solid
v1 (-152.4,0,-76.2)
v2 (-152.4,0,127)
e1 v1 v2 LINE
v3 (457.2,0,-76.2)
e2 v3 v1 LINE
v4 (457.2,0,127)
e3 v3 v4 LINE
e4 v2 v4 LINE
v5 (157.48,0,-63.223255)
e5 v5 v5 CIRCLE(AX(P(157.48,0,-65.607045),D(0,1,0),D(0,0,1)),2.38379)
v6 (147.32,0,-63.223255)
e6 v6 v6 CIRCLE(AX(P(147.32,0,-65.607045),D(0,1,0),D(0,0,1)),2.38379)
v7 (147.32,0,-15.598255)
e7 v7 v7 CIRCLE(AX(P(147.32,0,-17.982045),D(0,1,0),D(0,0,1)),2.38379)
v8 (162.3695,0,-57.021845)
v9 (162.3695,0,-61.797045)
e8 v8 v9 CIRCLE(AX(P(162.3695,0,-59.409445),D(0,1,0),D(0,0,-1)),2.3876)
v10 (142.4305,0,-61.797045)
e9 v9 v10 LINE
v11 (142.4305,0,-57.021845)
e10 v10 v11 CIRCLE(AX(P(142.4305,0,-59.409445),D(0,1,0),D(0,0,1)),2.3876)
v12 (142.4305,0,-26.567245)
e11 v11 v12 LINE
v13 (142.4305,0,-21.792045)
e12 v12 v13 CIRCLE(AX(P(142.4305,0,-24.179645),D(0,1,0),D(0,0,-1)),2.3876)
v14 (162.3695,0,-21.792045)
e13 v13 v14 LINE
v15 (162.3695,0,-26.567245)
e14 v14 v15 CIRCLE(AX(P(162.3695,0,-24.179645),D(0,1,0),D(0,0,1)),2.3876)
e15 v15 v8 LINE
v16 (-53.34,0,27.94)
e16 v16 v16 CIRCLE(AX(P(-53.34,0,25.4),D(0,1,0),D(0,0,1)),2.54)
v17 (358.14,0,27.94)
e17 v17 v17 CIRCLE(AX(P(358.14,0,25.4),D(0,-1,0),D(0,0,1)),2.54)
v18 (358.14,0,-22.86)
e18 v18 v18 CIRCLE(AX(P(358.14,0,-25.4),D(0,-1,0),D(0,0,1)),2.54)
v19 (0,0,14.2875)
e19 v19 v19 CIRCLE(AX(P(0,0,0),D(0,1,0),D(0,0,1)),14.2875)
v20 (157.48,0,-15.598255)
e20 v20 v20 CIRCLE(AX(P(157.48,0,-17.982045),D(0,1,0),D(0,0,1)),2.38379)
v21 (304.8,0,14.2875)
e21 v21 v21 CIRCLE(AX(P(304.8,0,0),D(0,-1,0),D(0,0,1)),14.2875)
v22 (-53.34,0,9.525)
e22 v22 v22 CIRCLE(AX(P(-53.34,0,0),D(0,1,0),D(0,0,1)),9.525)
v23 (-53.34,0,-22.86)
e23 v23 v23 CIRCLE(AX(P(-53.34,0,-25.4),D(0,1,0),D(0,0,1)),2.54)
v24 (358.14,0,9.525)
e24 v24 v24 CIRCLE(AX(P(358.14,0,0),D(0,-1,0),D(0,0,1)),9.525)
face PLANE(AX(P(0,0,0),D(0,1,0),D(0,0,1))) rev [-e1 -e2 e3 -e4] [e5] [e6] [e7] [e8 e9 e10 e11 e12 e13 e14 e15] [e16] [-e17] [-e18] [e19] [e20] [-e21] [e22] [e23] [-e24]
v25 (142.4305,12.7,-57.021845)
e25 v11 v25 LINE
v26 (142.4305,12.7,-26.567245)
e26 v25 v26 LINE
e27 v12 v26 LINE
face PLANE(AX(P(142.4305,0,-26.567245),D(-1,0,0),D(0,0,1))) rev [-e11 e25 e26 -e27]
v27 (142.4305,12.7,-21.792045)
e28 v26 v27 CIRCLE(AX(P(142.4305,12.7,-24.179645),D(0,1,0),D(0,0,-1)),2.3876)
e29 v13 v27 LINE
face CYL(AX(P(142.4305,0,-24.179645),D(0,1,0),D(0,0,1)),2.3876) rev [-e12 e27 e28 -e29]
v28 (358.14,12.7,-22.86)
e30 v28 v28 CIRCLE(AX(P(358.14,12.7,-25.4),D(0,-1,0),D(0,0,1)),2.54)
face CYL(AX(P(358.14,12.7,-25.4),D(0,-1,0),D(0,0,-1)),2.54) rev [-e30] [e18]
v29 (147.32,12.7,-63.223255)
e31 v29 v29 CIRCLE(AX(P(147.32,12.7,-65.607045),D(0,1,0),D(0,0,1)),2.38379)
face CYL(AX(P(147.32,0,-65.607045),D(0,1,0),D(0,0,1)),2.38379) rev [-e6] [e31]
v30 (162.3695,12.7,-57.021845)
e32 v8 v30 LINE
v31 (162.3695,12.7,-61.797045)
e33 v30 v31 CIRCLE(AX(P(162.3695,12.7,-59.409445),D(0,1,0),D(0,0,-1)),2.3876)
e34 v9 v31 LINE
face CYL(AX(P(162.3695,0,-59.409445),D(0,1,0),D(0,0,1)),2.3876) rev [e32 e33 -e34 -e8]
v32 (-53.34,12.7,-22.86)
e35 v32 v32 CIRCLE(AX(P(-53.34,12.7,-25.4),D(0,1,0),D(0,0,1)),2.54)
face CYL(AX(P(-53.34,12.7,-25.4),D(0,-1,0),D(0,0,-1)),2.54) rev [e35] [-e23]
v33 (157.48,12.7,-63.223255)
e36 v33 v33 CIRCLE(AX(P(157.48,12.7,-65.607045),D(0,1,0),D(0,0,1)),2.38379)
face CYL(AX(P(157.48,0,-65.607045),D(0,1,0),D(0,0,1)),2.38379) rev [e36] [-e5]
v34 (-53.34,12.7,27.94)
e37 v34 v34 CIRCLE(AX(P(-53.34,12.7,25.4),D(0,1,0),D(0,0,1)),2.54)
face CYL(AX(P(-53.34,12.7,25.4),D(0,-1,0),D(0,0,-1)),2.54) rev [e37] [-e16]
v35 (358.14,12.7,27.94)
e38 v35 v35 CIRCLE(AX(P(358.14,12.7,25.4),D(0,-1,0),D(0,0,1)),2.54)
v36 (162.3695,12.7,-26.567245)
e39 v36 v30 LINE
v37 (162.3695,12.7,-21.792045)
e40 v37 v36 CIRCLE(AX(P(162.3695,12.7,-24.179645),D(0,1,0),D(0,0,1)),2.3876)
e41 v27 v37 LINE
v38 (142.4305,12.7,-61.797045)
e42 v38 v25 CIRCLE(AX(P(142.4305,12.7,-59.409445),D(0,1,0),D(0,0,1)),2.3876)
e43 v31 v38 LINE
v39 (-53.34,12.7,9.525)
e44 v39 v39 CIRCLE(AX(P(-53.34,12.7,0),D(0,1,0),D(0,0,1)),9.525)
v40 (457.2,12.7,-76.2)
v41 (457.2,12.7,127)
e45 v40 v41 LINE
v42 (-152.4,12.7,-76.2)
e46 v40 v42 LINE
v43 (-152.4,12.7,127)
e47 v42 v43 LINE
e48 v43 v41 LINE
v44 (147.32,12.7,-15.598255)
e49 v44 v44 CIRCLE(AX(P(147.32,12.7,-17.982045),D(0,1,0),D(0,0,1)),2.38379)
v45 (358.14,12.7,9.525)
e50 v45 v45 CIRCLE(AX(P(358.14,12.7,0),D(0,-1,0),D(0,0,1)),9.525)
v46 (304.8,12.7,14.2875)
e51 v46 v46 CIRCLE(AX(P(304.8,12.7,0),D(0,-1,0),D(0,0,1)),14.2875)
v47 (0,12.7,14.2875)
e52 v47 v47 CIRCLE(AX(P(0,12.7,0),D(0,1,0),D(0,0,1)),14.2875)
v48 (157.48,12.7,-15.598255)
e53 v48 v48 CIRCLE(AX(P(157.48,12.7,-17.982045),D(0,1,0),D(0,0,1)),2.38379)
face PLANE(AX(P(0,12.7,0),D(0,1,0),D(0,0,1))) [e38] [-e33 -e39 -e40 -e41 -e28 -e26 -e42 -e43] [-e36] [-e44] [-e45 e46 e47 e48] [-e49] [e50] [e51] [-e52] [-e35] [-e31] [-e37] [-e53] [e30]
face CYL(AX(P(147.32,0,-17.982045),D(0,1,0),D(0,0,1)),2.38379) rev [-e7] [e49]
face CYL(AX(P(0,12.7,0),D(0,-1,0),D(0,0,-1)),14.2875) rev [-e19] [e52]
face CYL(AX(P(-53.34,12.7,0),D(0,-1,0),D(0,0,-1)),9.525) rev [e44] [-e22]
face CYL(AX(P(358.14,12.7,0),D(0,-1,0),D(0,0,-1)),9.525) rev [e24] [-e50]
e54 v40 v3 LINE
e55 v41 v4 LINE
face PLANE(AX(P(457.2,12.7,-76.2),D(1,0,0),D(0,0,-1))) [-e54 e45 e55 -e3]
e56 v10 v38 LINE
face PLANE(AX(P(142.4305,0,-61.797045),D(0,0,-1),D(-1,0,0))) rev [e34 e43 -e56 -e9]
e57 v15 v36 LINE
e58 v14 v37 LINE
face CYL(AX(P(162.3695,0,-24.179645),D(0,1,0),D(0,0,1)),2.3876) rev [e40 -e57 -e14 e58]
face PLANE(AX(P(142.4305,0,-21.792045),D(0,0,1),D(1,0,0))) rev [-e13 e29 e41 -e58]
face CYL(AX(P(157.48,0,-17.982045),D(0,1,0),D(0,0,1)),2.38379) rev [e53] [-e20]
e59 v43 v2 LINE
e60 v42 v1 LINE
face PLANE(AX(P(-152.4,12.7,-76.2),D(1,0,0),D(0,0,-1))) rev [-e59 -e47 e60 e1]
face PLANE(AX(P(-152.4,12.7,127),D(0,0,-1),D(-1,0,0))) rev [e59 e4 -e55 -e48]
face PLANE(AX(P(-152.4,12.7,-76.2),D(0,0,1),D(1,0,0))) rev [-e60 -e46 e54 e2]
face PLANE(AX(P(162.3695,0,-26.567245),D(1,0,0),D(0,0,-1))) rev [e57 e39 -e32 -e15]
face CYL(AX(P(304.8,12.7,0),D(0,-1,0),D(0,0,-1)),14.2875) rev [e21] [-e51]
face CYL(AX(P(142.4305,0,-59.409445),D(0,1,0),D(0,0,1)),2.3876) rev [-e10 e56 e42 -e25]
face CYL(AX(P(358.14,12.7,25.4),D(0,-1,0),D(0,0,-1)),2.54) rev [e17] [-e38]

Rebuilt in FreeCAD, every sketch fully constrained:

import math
import FreeCAD as App
import Part
import Sketcher
Q = App.Units.Quantity


def add_polygon(sketch, points):
    """Adds a closed chain of lines whose ends are joined by coincident constraints."""
    first, n = sketch.GeometryCount, len(points)
    for a, b in zip(points, points[1:] + points[:1]):
        sketch.addGeometry(Part.LineSegment(App.Vector(*a, 0), App.Vector(*b, 0)), False)
    for i in range(n):
        sketch.addConstraint(Sketcher.Constraint("Coincident", first + i, 2, first + (i + 1) % n, 1))

doc = App.newDocument("Part")
body = doc.addObject("PartDesign::Body", "Body")

sketch1 = body.newObject("Sketcher::SketchObject", "Sketch")
sketch1.AttachmentSupport = (doc.getObject("XZ_Plane"), [""])
sketch1.MapMode = "FlatFace"
add_polygon(sketch1, [(-152.4, -76.2), (-152.4, 127), (152.4, 127), (152.4, -76.2)])
sketch1.addGeometry(Part.Circle(App.Vector(-53.3, 25.4, 0), App.Vector(0, 0, 1), 2.5), False)
sketch1.addGeometry(Part.Circle(App.Vector(-53.3, 0, 0), App.Vector(0, 0, 1), 9.5), False)
sketch1.addGeometry(Part.Circle(App.Vector(-53.3, -25.4, 0), App.Vector(0, 0, 1), 2.5), False)
sketch1.addGeometry(Part.Circle(App.Vector(0, 0, 0), App.Vector(0, 0, 1), 14.3), False)
sketch1.addConstraint([
    Sketcher.Constraint("Vertical", 0),
    Sketcher.Constraint("Horizontal", 1),
    Sketcher.Constraint("Vertical", 2),
    Sketcher.Constraint("Horizontal", 3),
    Sketcher.Constraint("Coincident", 7, 3, -1, 1),
    Sketcher.Constraint("Equal", 4, 6),
    Sketcher.Constraint("Symmetric", 4, 3, 6, 3, -1),
    Sketcher.Constraint("PointOnObject", 5, 3, -1),
    Sketcher.Constraint("Vertical", 4, 3, 5, 3),
    Sketcher.Constraint("Diameter", 4, Q("0.2 in")),
    Sketcher.Constraint("Diameter", 5, Q("0.75 in")),
    Sketcher.Constraint("DistanceX", 1, 1, 1, 2, Q("12 in")),
    Sketcher.Constraint("DistanceY", 0, 1, 0, 2, Q("8 in")),
    Sketcher.Constraint("Diameter", 7, Q("1.125 in")),
    Sketcher.Constraint("DistanceY", -1, 1, 4, 3, Q("1 in")),
    Sketcher.Constraint("DistanceX", 0, 2, -1, 1, Q("6 in")),
    Sketcher.Constraint("DistanceY", -1, 1, 0, 2, Q("5 in")),
    Sketcher.Constraint("DistanceX", 4, 3, -1, 1, Q("2.1 in")),
])
pad1 = body.newObject("PartDesign::Pad", "Pad")
pad1.Profile = sketch1
pad1.Length = Q("0.5 in")
pad1.Reversed = True
doc.recompute()

datumplane = body.newObject("PartDesign::Plane", "DatumPlane")
datumplane.AttachmentSupport = (doc.getObject("YZ_Plane"), [""])
datumplane.MapMode = "FlatFace"
datumplane.AttachmentOffset = App.Placement(App.Vector(0, 0, 6 * 25.4), App.Rotation())
mirrored = body.newObject("PartDesign::Mirrored", "Mirrored")
mirrored.Originals = [pad1]
mirrored.MirrorPlane = (datumplane, [""])
body.Tip = mirrored

sketch2 = body.newObject("Sketcher::SketchObject", "Sketch001")
sketch2.AttachmentSupport = (doc.getObject("XZ_Plane"), [""])
sketch2.MapMode = "FlatFace"
sketch2.AttachmentOffset = App.Placement(App.Vector(0, 0, -0.5 * 25.4), App.Rotation())
sketch2.addGeometry([
    Part.Circle(App.Vector(157.5, -65.6, 0), App.Vector(0, 0, 1), 2.4),
    Part.Circle(App.Vector(147.3, -65.6, 0), App.Vector(0, 0, 1), 2.4),
    Part.Circle(App.Vector(147.3, -18, 0), App.Vector(0, 0, 1), 2.4),
    Part.Circle(App.Vector(157.5, -18, 0), App.Vector(0, 0, 1), 2.4),
    Part.LineSegment(App.Vector(142.4, -21.8, 0), App.Vector(162.4, -21.8, 0)),
    Part.ArcOfCircle(Part.Circle(App.Vector(162.4, -24.2, 0), App.Vector(0, 0, 1), 2.4), math.radians(-90), math.radians(90)),
    Part.LineSegment(App.Vector(162.4, -26.6, 0), App.Vector(162.4, -57, 0)),
    Part.ArcOfCircle(Part.Circle(App.Vector(162.4, -59.4, 0), App.Vector(0, 0, 1), 2.4), math.radians(-90), math.radians(90)),
    Part.LineSegment(App.Vector(162.4, -61.8, 0), App.Vector(142.4, -61.8, 0)),
    Part.ArcOfCircle(Part.Circle(App.Vector(142.4, -59.4, 0), App.Vector(0, 0, 1), 2.4), math.radians(90), math.radians(270)),
    Part.LineSegment(App.Vector(142.4, -57, 0), App.Vector(142.4, -26.6, 0)),
    Part.ArcOfCircle(Part.Circle(App.Vector(142.4, -24.2, 0), App.Vector(0, 0, 1), 2.4), math.radians(90), math.radians(270)),
], False)
sketch2.addConstraint([
    Sketcher.Constraint("Tangent", 4, 2, 5, 2),
    Sketcher.Constraint("Coincident", 5, 1, 6, 1),
    Sketcher.Constraint("Coincident", 6, 2, 7, 2),
    Sketcher.Constraint("Tangent", 7, 1, 8, 1),
    Sketcher.Constraint("Tangent", 8, 2, 9, 2),
    Sketcher.Constraint("Coincident", 9, 1, 10, 1),
    Sketcher.Constraint("Coincident", 10, 2, 11, 2),
    Sketcher.Constraint("Tangent", 11, 1, 4, 1),
    Sketcher.Constraint("Horizontal", 4),
    Sketcher.Constraint("Vertical", 6),
    Sketcher.Constraint("Horizontal", 8),
    Sketcher.Constraint("Vertical", 10),
    Sketcher.Constraint("Equal", 0, 1),
    Sketcher.Constraint("Equal", 1, 2),
    Sketcher.Constraint("Equal", 2, 3),
    Sketcher.Constraint("Equal", 5, 7),
    Sketcher.Constraint("Equal", 7, 9),
    Sketcher.Constraint("Equal", 9, 11),
    Sketcher.Constraint("Horizontal", 0, 3, 1, 3),
    Sketcher.Constraint("Horizontal", 2, 3, 3, 3),
    Sketcher.Constraint("Vertical", 1, 3, 2, 3),
    Sketcher.Constraint("Vertical", 0, 3, 3, 3),
    Sketcher.Constraint("Vertical", 5, 3, 7, 3),
    Sketcher.Constraint("Vertical", 9, 3, 11, 3),
    Sketcher.Constraint("Vertical", 4, 2, 5, 1),
    Sketcher.Constraint("Vertical", 8, 2, 9, 1),
    Sketcher.Constraint("Radius", 5, Q("0.094 in")),
    Sketcher.Constraint("Diameter", 0, Q("0.1877 in")),
    Sketcher.Constraint("DistanceX", -1, 1, 0, 3, Q("6.2 in")),
    Sketcher.Constraint("DistanceX", -1, 1, 1, 3, Q("5.8 in")),
    Sketcher.Constraint("DistanceX", 4, 1, 4, 2, Q("0.785 in")),
    Sketcher.Constraint("DistanceY", 6, 2, 6, 1, Q("1.199 in")),
    Sketcher.Constraint("DistanceY", 4, 2, 3, 3, Q("0.15 in")),
    Sketcher.Constraint("DistanceY", 0, 3, 7, 1, Q("0.15 in")),
    Sketcher.Constraint("DistanceX", -1, 1, 5, 3, Q("6.3925 in")),
    Sketcher.Constraint("DistanceY", 0, 3, -1, 1, Q("65.607045 mm")),
])
pocket1 = body.newObject("PartDesign::Pocket", "Pocket")
pocket1.Profile = sketch2
pocket1.Type = "ThroughAll"
pocket1.Reversed = True

doc.recompute()
